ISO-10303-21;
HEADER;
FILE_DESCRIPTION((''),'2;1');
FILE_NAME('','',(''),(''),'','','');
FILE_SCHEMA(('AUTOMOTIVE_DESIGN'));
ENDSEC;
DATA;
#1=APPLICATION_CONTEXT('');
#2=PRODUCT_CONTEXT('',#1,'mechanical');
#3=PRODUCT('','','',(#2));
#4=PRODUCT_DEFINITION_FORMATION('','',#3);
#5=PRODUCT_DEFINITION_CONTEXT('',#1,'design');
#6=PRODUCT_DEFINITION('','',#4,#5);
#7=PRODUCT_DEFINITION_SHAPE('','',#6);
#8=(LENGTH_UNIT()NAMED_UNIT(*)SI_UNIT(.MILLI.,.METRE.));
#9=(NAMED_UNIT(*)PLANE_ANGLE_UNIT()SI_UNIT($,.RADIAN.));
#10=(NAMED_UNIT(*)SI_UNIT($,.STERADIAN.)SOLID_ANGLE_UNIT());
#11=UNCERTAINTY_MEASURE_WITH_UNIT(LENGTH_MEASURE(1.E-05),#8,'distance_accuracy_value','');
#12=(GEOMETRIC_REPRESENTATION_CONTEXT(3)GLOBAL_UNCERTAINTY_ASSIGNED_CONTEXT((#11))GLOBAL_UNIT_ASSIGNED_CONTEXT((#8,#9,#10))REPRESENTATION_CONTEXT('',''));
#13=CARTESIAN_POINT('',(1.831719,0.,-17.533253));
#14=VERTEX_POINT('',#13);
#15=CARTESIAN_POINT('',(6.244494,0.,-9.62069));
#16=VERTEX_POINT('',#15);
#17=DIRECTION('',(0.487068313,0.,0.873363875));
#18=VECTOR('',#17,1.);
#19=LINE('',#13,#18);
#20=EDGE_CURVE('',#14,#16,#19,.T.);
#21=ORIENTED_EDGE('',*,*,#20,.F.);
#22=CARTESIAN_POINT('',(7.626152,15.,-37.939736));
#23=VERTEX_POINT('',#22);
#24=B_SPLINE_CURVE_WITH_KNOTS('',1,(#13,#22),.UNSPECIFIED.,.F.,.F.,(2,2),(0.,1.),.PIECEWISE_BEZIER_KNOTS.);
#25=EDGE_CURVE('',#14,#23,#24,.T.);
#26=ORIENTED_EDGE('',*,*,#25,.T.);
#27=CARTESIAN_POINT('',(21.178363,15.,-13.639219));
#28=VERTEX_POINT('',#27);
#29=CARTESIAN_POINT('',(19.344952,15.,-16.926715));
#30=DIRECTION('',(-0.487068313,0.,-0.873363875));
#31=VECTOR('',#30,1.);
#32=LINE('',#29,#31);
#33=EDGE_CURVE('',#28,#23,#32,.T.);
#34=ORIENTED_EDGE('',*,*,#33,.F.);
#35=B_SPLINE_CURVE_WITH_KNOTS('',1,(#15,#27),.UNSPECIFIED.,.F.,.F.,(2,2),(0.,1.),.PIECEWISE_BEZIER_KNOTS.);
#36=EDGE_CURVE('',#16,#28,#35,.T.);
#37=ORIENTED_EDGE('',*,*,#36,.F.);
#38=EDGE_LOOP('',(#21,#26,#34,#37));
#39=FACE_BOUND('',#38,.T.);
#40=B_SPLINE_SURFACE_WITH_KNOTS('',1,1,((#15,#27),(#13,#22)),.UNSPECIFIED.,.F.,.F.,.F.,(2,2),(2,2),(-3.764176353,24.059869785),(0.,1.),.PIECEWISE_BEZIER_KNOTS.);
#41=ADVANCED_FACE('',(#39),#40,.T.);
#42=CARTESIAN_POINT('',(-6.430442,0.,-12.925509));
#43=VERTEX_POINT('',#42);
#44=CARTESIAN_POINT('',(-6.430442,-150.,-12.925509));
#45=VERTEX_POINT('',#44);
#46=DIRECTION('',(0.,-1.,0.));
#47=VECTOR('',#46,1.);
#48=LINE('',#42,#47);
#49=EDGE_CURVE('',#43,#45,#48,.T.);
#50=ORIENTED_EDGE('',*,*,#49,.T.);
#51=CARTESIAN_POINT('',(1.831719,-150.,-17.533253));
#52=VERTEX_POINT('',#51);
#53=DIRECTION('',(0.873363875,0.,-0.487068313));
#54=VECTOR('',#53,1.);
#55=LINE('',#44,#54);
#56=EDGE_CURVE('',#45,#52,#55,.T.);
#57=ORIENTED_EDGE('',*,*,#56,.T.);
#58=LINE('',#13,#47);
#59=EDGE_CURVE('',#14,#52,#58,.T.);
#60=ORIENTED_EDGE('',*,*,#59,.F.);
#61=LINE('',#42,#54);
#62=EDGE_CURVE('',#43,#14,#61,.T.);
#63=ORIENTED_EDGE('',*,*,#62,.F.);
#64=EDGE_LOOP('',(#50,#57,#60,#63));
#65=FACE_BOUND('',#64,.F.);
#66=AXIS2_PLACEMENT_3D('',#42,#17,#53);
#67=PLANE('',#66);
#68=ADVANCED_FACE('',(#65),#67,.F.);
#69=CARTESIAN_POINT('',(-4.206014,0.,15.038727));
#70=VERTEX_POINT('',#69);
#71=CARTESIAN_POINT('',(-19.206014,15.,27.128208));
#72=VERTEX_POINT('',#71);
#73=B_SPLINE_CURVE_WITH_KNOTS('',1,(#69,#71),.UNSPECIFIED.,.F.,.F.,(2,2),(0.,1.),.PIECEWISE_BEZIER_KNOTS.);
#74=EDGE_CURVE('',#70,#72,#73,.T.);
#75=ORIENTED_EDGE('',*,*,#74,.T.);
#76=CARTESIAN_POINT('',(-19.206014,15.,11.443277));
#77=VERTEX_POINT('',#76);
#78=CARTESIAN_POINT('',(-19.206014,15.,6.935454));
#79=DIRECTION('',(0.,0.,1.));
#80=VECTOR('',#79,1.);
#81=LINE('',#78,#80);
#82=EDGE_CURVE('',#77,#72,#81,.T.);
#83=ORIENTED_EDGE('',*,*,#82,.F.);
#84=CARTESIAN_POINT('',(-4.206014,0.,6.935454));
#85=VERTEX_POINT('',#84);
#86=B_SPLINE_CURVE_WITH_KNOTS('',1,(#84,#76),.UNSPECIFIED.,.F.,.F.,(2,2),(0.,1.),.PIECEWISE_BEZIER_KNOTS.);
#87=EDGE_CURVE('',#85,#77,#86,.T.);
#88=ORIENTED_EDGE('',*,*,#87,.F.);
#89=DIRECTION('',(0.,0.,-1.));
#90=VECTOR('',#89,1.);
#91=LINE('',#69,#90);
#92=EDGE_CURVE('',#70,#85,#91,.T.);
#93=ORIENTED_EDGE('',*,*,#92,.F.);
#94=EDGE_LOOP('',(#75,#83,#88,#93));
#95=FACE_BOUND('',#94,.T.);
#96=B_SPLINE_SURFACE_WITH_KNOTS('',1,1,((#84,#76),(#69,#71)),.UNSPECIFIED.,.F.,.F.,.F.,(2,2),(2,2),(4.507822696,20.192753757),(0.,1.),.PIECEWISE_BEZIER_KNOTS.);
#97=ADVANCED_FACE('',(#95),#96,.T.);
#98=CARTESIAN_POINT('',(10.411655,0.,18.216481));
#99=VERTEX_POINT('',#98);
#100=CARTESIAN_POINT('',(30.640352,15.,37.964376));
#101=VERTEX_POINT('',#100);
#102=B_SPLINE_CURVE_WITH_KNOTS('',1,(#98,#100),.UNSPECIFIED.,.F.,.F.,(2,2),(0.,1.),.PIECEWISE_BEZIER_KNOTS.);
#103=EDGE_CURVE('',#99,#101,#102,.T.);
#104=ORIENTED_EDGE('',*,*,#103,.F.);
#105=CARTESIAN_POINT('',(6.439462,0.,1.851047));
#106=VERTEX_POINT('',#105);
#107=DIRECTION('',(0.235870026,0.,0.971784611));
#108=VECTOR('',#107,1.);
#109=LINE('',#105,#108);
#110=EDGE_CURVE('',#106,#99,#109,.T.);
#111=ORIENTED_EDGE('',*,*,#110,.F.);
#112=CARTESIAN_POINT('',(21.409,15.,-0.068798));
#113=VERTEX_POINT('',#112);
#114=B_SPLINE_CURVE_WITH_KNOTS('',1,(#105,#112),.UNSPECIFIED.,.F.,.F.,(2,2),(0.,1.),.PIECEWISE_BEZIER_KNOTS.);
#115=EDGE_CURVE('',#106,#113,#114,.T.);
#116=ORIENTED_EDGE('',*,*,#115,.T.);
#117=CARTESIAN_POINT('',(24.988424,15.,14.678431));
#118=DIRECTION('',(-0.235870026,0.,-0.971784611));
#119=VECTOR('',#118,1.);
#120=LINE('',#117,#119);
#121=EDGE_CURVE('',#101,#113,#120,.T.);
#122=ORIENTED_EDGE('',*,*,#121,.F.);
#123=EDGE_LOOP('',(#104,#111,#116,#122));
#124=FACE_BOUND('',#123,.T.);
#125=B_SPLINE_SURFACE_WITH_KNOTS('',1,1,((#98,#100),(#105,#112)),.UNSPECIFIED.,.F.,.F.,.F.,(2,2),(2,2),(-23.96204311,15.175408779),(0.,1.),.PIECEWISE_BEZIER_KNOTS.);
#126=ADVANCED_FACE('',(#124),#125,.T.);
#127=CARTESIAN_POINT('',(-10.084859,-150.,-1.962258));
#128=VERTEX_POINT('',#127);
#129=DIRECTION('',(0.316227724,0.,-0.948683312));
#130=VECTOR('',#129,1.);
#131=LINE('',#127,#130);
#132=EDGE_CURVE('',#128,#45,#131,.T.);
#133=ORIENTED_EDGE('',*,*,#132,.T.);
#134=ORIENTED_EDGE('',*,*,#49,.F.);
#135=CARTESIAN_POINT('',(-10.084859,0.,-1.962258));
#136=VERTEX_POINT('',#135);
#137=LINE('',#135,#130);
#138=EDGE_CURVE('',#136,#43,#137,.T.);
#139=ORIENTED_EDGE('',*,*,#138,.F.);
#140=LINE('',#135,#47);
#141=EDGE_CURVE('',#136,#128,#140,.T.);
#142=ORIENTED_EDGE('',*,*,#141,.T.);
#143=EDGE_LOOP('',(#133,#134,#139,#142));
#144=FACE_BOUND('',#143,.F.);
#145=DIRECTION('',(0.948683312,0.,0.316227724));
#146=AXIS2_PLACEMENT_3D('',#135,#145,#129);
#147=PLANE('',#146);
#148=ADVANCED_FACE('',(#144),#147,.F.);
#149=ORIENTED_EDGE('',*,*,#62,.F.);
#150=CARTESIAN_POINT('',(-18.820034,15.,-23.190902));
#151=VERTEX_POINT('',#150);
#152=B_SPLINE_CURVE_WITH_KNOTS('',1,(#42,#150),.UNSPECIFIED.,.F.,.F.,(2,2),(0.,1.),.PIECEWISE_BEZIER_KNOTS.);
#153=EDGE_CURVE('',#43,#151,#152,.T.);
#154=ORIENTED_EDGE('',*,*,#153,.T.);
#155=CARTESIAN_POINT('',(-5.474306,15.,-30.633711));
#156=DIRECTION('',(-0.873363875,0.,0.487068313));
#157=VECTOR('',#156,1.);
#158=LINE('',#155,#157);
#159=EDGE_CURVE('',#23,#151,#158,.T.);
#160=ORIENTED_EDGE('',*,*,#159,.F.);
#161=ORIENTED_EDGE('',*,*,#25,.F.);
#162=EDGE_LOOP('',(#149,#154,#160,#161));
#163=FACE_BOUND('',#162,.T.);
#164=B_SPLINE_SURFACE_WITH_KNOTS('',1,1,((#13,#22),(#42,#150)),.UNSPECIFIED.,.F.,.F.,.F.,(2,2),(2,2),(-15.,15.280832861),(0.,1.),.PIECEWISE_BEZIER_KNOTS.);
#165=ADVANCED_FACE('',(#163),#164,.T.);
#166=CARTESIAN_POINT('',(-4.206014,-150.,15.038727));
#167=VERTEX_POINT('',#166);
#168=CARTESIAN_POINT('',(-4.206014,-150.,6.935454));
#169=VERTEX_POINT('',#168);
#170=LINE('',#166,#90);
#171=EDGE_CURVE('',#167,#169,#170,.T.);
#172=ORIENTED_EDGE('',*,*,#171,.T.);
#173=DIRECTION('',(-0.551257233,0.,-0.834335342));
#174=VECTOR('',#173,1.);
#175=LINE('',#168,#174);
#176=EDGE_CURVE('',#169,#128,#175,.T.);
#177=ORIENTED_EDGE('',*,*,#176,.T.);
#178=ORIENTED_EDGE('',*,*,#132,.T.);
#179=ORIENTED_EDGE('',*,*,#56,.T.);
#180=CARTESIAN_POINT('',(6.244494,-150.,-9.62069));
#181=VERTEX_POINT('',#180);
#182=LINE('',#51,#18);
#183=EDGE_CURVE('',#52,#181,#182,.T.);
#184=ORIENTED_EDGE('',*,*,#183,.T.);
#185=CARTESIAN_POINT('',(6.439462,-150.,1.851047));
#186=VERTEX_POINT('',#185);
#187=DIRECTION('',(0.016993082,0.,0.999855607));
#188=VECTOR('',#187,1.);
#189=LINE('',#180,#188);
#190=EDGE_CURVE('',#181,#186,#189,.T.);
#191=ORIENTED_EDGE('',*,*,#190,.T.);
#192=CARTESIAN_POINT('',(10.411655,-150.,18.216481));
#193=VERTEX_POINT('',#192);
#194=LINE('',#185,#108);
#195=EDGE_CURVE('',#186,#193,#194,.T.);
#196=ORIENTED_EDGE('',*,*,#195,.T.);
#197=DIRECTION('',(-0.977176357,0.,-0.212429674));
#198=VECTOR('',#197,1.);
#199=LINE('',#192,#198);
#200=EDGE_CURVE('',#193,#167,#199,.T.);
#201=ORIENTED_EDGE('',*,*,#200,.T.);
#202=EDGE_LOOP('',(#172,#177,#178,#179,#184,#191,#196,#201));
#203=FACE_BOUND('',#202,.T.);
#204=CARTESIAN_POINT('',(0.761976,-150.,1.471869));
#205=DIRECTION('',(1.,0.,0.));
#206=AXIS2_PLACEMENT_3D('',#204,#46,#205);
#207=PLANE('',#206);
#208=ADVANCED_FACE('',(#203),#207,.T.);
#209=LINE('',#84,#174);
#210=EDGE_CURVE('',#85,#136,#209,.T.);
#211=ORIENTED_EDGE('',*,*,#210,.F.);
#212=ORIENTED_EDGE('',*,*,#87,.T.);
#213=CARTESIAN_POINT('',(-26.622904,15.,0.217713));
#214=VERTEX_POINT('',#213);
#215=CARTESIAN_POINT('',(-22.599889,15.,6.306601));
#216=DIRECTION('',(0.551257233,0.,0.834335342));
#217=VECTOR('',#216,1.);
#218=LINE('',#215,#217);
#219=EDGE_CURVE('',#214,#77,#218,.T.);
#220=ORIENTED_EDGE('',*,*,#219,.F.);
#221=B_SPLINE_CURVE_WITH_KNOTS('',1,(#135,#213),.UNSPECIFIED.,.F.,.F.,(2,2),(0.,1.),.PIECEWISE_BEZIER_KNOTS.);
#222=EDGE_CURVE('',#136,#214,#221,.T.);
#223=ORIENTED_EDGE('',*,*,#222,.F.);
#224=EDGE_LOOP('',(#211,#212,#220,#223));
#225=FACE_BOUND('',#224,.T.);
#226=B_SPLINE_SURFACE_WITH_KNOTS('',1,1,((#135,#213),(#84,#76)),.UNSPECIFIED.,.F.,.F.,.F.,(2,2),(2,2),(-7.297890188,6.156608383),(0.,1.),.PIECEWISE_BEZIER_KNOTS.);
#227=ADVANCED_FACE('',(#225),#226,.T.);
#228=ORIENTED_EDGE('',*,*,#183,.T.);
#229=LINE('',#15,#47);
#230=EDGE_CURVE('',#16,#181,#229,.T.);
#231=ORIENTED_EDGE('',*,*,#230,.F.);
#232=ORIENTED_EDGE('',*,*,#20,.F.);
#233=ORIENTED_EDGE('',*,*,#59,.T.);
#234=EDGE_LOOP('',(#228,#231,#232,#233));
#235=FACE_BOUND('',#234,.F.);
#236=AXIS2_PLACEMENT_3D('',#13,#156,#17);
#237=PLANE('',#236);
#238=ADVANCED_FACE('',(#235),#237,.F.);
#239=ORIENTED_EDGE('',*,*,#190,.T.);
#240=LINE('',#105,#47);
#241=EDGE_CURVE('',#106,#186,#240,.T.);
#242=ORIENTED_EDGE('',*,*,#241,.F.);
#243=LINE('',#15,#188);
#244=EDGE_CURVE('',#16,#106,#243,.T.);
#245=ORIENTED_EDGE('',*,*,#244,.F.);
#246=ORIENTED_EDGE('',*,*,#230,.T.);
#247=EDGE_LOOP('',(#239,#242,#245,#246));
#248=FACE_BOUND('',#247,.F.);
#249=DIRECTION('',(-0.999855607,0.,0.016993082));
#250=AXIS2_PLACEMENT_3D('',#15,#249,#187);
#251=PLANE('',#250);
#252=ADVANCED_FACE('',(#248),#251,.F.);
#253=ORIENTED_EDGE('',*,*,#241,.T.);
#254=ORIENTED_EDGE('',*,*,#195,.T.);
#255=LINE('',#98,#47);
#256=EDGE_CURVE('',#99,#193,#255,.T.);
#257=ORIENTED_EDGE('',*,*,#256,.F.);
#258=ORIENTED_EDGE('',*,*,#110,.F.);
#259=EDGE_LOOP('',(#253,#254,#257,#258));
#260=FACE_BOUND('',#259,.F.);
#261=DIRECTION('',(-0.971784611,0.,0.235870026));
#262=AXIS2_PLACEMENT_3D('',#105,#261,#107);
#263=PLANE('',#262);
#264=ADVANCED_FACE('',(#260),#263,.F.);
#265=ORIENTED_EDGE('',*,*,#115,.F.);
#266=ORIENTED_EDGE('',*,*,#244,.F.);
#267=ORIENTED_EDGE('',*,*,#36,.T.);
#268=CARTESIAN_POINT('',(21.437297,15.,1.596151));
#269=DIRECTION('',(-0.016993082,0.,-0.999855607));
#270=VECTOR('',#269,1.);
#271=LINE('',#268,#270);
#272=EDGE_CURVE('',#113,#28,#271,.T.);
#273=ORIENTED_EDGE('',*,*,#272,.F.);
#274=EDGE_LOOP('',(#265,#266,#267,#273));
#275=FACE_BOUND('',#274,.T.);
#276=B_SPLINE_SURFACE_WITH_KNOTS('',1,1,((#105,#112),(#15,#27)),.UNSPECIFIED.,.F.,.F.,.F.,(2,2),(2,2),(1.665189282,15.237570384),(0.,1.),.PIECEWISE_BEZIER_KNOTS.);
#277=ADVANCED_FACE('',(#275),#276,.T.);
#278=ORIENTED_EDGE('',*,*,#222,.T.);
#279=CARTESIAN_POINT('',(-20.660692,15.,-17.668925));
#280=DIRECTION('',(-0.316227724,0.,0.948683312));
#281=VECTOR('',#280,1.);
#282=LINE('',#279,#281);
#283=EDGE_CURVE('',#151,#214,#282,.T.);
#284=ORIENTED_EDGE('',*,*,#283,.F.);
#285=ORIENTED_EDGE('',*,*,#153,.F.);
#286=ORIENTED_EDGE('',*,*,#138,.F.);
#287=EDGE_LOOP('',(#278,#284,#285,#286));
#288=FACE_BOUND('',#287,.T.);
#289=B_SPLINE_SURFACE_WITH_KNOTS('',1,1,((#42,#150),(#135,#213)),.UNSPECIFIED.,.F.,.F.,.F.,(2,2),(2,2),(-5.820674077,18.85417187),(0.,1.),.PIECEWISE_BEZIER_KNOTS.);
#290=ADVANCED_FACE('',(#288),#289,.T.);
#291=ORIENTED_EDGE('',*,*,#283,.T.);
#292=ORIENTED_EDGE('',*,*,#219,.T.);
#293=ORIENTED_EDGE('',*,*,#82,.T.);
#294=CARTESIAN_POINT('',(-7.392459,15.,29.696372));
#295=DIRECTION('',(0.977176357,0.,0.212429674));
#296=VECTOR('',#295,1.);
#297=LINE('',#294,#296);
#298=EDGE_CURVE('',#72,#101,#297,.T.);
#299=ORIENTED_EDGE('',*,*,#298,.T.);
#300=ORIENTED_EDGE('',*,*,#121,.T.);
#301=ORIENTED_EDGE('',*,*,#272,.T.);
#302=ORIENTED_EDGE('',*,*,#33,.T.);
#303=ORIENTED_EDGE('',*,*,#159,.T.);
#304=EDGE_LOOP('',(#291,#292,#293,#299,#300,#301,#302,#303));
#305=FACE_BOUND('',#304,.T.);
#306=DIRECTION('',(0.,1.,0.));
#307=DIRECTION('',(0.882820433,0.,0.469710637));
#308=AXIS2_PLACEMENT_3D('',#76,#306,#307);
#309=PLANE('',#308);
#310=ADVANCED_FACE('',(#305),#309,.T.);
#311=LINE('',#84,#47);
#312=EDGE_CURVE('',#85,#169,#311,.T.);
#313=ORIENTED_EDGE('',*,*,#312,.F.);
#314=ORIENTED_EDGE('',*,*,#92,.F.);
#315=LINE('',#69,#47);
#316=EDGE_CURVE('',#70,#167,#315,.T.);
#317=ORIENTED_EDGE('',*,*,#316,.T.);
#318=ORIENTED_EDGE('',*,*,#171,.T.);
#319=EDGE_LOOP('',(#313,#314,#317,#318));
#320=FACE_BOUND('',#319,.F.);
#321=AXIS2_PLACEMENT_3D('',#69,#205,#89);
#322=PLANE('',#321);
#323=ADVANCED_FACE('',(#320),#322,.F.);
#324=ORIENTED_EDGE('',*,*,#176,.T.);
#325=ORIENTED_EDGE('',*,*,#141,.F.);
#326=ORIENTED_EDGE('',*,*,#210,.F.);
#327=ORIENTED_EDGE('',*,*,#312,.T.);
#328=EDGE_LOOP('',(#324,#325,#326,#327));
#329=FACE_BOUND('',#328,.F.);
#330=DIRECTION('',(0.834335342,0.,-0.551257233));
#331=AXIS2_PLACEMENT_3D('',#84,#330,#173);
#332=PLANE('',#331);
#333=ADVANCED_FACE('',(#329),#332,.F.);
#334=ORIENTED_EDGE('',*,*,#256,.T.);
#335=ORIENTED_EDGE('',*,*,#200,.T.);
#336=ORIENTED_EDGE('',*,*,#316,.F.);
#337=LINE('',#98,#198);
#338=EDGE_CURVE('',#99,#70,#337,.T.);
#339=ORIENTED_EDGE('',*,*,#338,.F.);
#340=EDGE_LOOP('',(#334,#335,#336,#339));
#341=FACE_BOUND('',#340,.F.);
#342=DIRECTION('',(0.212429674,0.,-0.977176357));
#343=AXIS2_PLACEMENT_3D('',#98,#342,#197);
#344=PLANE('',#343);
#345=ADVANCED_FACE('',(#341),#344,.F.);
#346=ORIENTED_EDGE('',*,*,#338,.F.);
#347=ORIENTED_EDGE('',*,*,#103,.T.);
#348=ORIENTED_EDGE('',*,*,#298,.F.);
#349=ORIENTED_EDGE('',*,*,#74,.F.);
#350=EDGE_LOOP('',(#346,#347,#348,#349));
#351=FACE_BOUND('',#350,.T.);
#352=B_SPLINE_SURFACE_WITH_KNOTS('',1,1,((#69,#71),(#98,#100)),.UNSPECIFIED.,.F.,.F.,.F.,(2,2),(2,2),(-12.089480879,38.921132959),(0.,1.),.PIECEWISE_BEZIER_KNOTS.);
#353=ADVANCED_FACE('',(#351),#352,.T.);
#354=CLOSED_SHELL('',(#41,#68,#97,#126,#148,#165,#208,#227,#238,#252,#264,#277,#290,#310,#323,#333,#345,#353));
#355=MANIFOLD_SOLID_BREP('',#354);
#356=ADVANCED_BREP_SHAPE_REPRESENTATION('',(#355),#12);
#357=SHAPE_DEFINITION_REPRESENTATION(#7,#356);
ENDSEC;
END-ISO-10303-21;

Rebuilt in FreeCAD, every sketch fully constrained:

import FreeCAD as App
import Part
import Sketcher


def add_polygon(sketch, points):
    """Adds a closed chain of lines whose ends are joined by coincident constraints."""
    first, n = sketch.GeometryCount, len(points)
    for a, b in zip(points, points[1:] + points[:1]):
        sketch.addGeometry(Part.LineSegment(App.Vector(*a, 0), App.Vector(*b, 0)), False)
    for i in range(n):
        sketch.addConstraint(Sketcher.Constraint("Coincident", first + i, 2, first + (i + 1) % n, 1))

doc = App.newDocument("Part")
body = doc.addObject("PartDesign::Body", "Body")

sketch1 = body.newObject("Sketcher::SketchObject", "Sketch")
sketch1.AttachmentSupport = (doc.getObject("XZ_Plane"), [""])
sketch1.MapMode = "FlatFace"
add_polygon(sketch1, [(-4, 15), (-4, 7), (-10, -2), (-6, -13), (2, -18), (6, -10), (6, 2), (10, 18)])
sketch1.addConstraint([
    Sketcher.Constraint("Vertical", 0),
    Sketcher.Constraint("Perpendicular", 3, 4),
    Sketcher.Constraint("Distance", 6, 16.840598),
    Sketcher.Constraint("DistanceY", 3, 2, 5, 2, 19.3843),
    Sketcher.Constraint("Distance", 1, 10.664431),
    Sketcher.Constraint("Distance", 2, 11.556282),
    Sketcher.Constraint("Distance", 3, 9.460159),
    Sketcher.Constraint("Distance", 4, 9.05987),
    Sketcher.Constraint("Distance", 7, 14.95909),
    Sketcher.Constraint("DistanceY", 0, 2, 0, 1, 8.103273),
    Sketcher.Constraint("DistanceX", 1, 2, -1, 1, 10.084859),
    Sketcher.Constraint("DistanceY", 2, 2, -1, 1, 12.925509),
    Sketcher.Constraint("DistanceX", -1, 1, 3, 2, 1.831719),
    Sketcher.Constraint("DistanceY", 4, 2, -1, 1, 9.62069),
    Sketcher.Constraint("DistanceY", -1, 1, 6, 2, 18.216481),
    Sketcher.Constraint("DistanceY", 1, 2, 0, 2, 8.897712),
])
pad1 = body.newObject("PartDesign::Pad", "Pad")
pad1.Profile = sketch1
pad1.Length = 150

sketch2 = body.newObject("Sketcher::SketchObject", "Sketch001")
sketch2.AttachmentSupport = (doc.getObject("XZ_Plane"), [""])
sketch2.MapMode = "FlatFace"
add_polygon(sketch2, [(-4, 7), (-4, 15), (10, 18), (6, 2), (6, -10), (2, -18), (-6, -13), (-10, -2)])
sketch2.addConstraint([
    Sketcher.Constraint("Vertical", 0),
    Sketcher.Constraint("Perpendicular", 4, 5),
    Sketcher.Constraint("Distance", 2, 16.840598),
    Sketcher.Constraint("DistanceY", 4, 2, 2, 2, 19.3843),
    Sketcher.Constraint("Distance", 1, 14.95909),
    Sketcher.Constraint("Distance", 4, 9.05987),
    Sketcher.Constraint("Distance", 5, 9.460159),
    Sketcher.Constraint("Distance", 6, 11.556282),
    Sketcher.Constraint("Distance", 7, 10.664431),
    Sketcher.Constraint("DistanceY", 0, 1, 0, 2, 8.103273),
    Sketcher.Constraint("DistanceY", -1, 1, 1, 2, 18.216481),
    Sketcher.Constraint("DistanceY", 3, 2, -1, 1, 9.62069),
    Sketcher.Constraint("DistanceX", -1, 1, 4, 2, 1.831719),
    Sketcher.Constraint("DistanceY", 5, 2, -1, 1, 12.925509),
    Sketcher.Constraint("DistanceX", 6, 2, -1, 1, 10.084859),
    Sketcher.Constraint("DistanceX", 0, 2, 1, 2, 14.617669),
])
pad2 = body.newObject("PartDesign::Pad", "Pad001")
pad2.Profile = sketch2
pad2.Length = 15
pad2.Reversed = True
pad2.TaperAngle = 45

doc.recompute()
